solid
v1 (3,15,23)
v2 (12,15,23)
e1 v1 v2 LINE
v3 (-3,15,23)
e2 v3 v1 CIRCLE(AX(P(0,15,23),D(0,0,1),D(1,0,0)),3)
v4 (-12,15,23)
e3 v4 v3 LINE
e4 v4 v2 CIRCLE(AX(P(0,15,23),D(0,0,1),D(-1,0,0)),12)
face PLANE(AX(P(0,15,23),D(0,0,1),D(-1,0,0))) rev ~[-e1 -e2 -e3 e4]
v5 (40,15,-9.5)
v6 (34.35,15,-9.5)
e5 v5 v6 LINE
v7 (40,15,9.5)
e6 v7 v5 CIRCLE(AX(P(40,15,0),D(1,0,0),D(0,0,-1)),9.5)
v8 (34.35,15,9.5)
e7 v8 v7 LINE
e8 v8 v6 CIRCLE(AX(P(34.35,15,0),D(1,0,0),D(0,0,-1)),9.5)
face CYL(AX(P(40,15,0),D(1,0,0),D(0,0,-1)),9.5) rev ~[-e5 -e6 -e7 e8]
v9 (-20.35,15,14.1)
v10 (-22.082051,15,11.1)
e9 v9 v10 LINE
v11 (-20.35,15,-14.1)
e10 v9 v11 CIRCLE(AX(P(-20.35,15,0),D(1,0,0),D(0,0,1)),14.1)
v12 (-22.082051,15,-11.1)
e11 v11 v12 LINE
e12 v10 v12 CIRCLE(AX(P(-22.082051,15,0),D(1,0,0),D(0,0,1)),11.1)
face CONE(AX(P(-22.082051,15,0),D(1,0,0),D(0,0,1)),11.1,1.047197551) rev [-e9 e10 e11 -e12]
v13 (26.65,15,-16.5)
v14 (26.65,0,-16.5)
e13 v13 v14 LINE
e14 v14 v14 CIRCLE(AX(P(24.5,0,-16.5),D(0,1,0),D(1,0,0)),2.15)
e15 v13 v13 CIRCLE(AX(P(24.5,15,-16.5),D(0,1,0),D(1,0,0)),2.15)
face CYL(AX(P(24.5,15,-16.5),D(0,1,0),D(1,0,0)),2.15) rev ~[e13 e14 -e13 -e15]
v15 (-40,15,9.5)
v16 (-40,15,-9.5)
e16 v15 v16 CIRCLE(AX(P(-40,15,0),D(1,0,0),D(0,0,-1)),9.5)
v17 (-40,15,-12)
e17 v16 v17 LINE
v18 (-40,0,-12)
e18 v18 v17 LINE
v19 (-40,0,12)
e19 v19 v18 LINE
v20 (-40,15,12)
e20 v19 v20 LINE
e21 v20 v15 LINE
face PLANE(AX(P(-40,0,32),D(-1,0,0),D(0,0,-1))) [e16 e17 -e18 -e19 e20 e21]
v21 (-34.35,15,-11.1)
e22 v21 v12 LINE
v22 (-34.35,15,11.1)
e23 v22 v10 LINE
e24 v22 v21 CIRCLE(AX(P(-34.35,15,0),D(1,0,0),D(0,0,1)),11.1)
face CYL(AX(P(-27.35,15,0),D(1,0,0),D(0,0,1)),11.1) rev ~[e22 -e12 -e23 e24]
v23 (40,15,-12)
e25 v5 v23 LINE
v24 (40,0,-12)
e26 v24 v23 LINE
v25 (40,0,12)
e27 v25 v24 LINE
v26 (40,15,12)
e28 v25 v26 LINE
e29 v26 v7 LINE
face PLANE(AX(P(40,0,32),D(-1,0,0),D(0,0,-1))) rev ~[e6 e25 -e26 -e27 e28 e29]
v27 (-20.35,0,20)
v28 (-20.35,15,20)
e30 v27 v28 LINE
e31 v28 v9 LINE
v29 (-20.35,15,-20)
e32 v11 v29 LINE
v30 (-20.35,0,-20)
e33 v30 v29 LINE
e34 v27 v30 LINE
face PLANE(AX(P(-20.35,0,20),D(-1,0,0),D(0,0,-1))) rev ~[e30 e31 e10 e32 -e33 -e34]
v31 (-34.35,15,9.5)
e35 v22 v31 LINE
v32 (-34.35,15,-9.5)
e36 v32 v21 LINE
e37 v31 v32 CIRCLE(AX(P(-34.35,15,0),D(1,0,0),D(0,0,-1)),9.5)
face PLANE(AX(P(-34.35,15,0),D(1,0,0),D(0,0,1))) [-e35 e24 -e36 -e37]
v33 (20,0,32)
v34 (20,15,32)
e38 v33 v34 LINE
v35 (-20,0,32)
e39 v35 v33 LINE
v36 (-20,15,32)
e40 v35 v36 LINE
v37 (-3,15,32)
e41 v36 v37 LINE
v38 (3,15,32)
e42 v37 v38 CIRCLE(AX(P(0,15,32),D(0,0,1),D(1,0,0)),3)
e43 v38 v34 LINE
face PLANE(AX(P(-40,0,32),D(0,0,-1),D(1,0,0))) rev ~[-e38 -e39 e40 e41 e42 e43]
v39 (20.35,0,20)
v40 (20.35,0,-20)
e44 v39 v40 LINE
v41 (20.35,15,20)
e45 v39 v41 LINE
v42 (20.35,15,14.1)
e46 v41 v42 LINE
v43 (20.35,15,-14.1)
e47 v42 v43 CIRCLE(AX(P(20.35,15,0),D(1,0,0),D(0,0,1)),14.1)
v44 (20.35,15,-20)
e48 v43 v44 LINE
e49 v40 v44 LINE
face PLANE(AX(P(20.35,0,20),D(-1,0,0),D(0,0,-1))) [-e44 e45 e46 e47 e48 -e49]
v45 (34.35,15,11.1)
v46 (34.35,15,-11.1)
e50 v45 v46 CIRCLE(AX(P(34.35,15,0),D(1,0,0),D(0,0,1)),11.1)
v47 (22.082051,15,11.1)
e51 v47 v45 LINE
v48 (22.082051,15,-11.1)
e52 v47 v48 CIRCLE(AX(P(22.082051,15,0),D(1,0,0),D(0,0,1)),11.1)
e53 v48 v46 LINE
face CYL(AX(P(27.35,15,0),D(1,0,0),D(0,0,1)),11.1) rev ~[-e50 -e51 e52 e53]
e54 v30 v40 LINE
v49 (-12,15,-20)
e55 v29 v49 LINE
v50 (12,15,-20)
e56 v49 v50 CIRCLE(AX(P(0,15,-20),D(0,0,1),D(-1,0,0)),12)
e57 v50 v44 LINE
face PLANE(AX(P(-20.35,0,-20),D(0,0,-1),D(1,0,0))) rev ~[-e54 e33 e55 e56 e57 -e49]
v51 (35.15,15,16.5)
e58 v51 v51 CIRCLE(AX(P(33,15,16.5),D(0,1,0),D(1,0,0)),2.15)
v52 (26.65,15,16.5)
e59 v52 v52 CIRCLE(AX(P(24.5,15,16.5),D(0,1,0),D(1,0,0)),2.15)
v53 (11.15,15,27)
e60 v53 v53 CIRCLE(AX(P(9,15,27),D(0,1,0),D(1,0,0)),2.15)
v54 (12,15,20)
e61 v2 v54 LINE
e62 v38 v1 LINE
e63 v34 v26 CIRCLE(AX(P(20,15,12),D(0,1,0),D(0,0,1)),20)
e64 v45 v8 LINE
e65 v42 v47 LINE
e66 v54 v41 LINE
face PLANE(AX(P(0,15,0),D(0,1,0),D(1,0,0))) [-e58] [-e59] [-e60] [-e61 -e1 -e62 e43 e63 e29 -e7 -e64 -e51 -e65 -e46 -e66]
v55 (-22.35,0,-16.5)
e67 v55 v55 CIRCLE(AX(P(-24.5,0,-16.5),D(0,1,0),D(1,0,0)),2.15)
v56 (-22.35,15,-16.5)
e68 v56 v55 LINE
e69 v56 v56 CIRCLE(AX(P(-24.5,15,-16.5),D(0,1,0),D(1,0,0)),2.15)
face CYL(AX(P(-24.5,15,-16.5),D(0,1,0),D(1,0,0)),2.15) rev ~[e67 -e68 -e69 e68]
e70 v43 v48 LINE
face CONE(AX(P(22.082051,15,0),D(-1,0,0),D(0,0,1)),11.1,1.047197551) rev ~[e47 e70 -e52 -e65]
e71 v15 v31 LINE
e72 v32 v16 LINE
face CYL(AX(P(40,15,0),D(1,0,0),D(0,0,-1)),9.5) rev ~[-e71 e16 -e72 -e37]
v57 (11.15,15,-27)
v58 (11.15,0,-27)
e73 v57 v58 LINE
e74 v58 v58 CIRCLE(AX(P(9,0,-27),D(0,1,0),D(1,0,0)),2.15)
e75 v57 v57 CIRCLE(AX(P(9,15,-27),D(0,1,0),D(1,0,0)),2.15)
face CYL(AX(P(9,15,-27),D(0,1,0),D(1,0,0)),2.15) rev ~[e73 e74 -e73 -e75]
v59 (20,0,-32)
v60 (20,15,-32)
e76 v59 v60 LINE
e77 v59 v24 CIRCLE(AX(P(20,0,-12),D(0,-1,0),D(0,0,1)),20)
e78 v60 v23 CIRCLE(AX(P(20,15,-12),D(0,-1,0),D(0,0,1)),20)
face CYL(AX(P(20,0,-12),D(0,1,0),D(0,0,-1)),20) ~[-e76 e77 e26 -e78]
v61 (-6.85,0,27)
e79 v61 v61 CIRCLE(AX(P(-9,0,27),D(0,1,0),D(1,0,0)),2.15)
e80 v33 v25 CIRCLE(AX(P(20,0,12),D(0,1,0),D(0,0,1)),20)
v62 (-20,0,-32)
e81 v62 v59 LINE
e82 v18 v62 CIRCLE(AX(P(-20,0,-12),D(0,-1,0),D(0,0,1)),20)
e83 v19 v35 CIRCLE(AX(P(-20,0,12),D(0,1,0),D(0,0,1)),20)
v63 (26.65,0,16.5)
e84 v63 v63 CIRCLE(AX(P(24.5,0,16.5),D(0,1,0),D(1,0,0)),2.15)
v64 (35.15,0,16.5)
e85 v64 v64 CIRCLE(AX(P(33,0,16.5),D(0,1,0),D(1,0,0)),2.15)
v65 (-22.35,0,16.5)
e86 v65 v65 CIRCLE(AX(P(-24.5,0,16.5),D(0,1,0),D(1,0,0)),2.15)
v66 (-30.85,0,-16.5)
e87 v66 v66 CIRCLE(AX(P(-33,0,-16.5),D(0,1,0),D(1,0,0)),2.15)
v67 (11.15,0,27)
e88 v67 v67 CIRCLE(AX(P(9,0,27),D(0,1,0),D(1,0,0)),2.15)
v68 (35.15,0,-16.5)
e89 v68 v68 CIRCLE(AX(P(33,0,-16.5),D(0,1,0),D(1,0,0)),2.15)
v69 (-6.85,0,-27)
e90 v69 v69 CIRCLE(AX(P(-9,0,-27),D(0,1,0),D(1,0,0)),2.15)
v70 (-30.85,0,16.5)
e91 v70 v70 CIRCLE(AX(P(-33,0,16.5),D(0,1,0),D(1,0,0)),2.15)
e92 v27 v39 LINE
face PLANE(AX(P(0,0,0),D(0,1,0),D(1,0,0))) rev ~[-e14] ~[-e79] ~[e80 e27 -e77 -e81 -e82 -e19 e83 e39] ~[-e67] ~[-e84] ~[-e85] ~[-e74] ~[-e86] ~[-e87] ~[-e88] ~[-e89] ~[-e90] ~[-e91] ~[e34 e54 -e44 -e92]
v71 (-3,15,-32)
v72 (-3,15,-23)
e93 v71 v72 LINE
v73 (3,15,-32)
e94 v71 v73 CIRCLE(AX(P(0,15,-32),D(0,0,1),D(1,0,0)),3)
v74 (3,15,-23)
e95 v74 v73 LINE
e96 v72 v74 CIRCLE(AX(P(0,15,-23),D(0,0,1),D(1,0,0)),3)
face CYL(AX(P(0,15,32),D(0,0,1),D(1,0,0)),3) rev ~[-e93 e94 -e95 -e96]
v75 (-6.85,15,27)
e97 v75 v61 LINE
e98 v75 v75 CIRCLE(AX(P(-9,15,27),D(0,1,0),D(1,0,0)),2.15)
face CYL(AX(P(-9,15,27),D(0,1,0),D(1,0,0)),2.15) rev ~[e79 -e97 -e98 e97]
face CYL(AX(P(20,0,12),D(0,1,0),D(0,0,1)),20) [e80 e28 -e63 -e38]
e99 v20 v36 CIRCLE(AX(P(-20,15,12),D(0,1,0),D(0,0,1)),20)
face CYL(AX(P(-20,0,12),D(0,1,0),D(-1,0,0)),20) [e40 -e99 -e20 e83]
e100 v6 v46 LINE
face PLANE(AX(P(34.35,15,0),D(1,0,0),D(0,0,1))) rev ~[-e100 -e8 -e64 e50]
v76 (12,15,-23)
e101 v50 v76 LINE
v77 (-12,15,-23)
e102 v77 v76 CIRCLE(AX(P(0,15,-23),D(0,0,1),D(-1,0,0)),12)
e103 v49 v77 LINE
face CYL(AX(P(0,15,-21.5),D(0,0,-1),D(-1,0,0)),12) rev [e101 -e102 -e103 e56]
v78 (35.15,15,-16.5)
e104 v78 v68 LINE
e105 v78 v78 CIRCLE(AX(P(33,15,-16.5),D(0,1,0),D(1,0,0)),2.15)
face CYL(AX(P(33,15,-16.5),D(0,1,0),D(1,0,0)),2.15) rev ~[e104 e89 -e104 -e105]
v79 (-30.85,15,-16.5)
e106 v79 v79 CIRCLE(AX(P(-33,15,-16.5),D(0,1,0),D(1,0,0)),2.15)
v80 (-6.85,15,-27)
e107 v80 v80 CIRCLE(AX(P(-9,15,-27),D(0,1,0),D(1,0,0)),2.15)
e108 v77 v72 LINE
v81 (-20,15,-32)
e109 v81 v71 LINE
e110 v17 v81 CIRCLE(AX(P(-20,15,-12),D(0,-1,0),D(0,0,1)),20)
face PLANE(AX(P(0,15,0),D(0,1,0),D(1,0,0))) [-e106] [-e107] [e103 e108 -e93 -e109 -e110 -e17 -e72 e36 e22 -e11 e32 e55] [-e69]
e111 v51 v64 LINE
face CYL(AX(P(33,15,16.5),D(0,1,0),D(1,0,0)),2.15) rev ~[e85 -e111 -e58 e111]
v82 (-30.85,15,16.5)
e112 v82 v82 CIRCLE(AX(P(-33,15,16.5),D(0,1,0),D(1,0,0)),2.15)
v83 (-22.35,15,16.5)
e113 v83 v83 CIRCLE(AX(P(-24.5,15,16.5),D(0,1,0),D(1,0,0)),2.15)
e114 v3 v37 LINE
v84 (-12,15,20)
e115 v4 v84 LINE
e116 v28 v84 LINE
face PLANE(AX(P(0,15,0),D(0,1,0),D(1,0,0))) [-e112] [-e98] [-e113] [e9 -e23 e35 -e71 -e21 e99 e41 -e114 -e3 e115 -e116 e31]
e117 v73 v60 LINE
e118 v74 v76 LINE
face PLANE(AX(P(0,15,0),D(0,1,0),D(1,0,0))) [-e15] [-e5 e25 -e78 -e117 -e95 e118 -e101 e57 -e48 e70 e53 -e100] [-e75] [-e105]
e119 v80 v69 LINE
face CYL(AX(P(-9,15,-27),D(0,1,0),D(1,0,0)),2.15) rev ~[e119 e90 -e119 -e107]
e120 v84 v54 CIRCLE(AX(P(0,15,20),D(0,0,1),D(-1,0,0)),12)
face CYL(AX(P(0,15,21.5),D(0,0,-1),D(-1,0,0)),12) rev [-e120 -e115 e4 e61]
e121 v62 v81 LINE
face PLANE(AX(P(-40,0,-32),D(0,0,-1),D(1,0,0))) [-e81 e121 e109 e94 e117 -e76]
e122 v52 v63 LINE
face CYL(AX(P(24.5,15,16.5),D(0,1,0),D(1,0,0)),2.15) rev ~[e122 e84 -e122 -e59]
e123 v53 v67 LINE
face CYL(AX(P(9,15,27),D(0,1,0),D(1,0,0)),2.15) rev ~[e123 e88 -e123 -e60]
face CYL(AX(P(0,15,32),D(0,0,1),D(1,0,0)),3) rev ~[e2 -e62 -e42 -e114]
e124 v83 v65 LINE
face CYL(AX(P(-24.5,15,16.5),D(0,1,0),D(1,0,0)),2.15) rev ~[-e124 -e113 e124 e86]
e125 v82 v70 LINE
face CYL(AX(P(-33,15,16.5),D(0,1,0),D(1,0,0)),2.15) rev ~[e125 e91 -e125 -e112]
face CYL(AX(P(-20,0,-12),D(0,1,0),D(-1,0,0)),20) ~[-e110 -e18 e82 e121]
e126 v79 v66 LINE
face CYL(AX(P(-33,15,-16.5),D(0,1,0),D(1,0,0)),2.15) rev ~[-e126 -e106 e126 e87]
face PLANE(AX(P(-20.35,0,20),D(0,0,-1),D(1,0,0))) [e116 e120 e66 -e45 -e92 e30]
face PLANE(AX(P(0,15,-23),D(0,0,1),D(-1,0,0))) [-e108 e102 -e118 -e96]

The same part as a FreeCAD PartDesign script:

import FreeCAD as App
import Part
import Sketcher

V = App.Vector


def edges_at(feature, points):
    """Names of the edges that pass closest to the given points."""
    edges = feature.Shape.Edges
    near = lambda p: min(range(len(edges)), key=lambda i: edges[i].distToShape(Part.Vertex(*p))[0])
    return sorted({f"Edge{near(p) + 1}" for p in points})

doc = App.newDocument("Part")
body = doc.addObject("PartDesign::Body", "Body")

sketch1 = doc.addObject("Sketcher::SketchObject", "Sketch")
body.addObject(sketch1)
sketch1.AttachmentSupport = (doc.XZ_Plane, [""])
sketch1.MapMode = "FlatFace"
sketch1.addGeometry([
    Part.LineSegment(V(-40, -32, 0), V(-40, 32, 0)),
    Part.LineSegment(V(-40, 32, 0), V(40, 32, 0)),
    Part.LineSegment(V(40, 32, 0), V(40, -32, 0)),
    Part.LineSegment(V(40, -32, 0), V(-40, -32, 0)),
    Part.LineSegment(V(20, 20, 0), V(-20, 20, 0)),
    Part.LineSegment(V(-20, 20, 0), V(-20, -20, 0)),
    Part.LineSegment(V(-20, -20, 0), V(20, -20, 0)),
    Part.LineSegment(V(20, -20, 0), V(20, 20, 0)),
], False)
sketch1.addConstraint([
    Sketcher.Constraint("Coincident", 0, 2, 1, 1),
    Sketcher.Constraint("Coincident", 1, 2, 2, 1),
    Sketcher.Constraint("Coincident", 2, 2, 3, 1),
    Sketcher.Constraint("Coincident", 3, 2, 0, 1),
    Sketcher.Constraint("Coincident", 4, 2, 5, 1),
    Sketcher.Constraint("Coincident", 5, 2, 6, 1),
    Sketcher.Constraint("Coincident", 6, 2, 7, 1),
    Sketcher.Constraint("Coincident", 7, 2, 4, 1),
    Sketcher.Constraint("Vertical", 0),
    Sketcher.Constraint("Horizontal", 1),
    Sketcher.Constraint("Vertical", 2),
    Sketcher.Constraint("Horizontal", 3),
    Sketcher.Constraint("Horizontal", 4),
    Sketcher.Constraint("Vertical", 5),
    Sketcher.Constraint("Horizontal", 6),
    Sketcher.Constraint("Vertical", 7),
    Sketcher.Constraint("Symmetric", 0, 2, 2, 2, -1, 1),
    Sketcher.Constraint("Symmetric", 4, 2, 6, 2, -1, 1),
    Sketcher.Constraint("DistanceX", 1, 1, 1, 2, 80.0),
    Sketcher.Constraint("DistanceY", 0, 1, 0, 2, 64.0),
    Sketcher.Constraint("DistanceY", 5, 2, 5, 1, 40.0),
    Sketcher.Constraint("DistanceX", 4, 2, 4, 1, 40.7),
])
pad1 = doc.addObject("PartDesign::Pad", "Pad")
body.addObject(pad1)
pad1.Profile = sketch1
pad1.Length = 15
pad1.Reversed = True

sketch2 = doc.addObject("Sketcher::SketchObject", "Sketch001")
body.addObject(sketch2)
sketch2.AttachmentSupport = (doc.XZ_Plane, [""])
sketch2.MapMode = "FlatFace"
sketch2.AttachmentOffset = App.Placement(V(0, 0, -15), App.Rotation())
sketch2.addGeometry([
    Part.LineSegment(V(20, 0, 0), V(20, 11, 0)),
    Part.LineSegment(V(20, 11, 0), V(34, 11, 0)),
    Part.LineSegment(V(34, 11, 0), V(34, 0, 0)),
    Part.LineSegment(V(34, 0, 0), V(20, 0, 0)),
    Part.LineSegment(V(-34, 0, 0), V(-34, 11, 0)),
    Part.LineSegment(V(-34, 11, 0), V(-20, 11, 0)),
    Part.LineSegment(V(-20, 11, 0), V(-20, 0, 0)),
    Part.LineSegment(V(-20, 0, 0), V(-34, 0, 0)),
], False)
sketch2.addConstraint([
    Sketcher.Constraint("Coincident", 0, 2, 1, 1),
    Sketcher.Constraint("Coincident", 1, 2, 2, 1),
    Sketcher.Constraint("Coincident", 2, 2, 3, 1),
    Sketcher.Constraint("Coincident", 3, 2, 0, 1),
    Sketcher.Constraint("Coincident", 4, 2, 5, 1),
    Sketcher.Constraint("Coincident", 5, 2, 6, 1),
    Sketcher.Constraint("Coincident", 6, 2, 7, 1),
    Sketcher.Constraint("Coincident", 7, 2, 4, 1),
    Sketcher.Constraint("Vertical", 0),
    Sketcher.Constraint("Horizontal", 1),
    Sketcher.Constraint("Vertical", 2),
    Sketcher.Constraint("Horizontal", 3),
    Sketcher.Constraint("Vertical", 4),
    Sketcher.Constraint("Horizontal", 5),
    Sketcher.Constraint("Vertical", 6),
    Sketcher.Constraint("Horizontal", 7),
    Sketcher.Constraint("Symmetric", 3, 2, 6, 2, -1, 1),
    Sketcher.Constraint("Symmetric", 1, 2, 4, 2, -2),
    Sketcher.Constraint("PointOnObject", 2, 2, -1),
    Sketcher.Constraint("DistanceX", 1, 1, 1, 2, 14.0),
    Sketcher.Constraint("DistanceY", 0, 1, 0, 2, 11.1),
    Sketcher.Constraint("DistanceX", 4, 2, 0, 2, 54.7),
])
groove = doc.addObject("PartDesign::Groove", "Groove")
body.addObject(groove)
groove.Profile = sketch2
groove.ReferenceAxis = (sketch2, ["H_Axis"])
groove.Angle = 360

sketch3 = doc.addObject("Sketcher::SketchObject", "Sketch002")
body.addObject(sketch3)
sketch3.AttachmentSupport = (doc.YZ_Plane, [""])
sketch3.MapMode = "FlatFace"
sketch3.AttachmentOffset = App.Placement(V(0, 0, 40), App.Rotation())
sketch3.addGeometry(Part.Circle(V(15, 0, 0), V(0, 0, 1), 10), False)
sketch3.addConstraint([
    Sketcher.Constraint("PointOnObject", 0, 3, -1),
    Sketcher.Constraint("Diameter", 0, 19.0),
    Sketcher.Constraint("DistanceX", -1, 1, 0, 3, 15.0),
])
pocket1 = doc.addObject("PartDesign::Pocket", "Pocket")
body.addObject(pocket1)
pocket1.Profile = sketch3
pocket1.Type = "ThroughAll"

sketch4 = doc.addObject("Sketcher::SketchObject", "Sketch003")
body.addObject(sketch4)
sketch4.AttachmentSupport = (doc.XY_Plane, [""])
sketch4.MapMode = "FlatFace"
sketch4.AttachmentOffset = App.Placement(V(0, 0, 32), App.Rotation())
sketch4.addGeometry(Part.Circle(V(0, 15, 0), V(0, 0, 1), 3), False)
sketch4.addConstraint([
    Sketcher.Constraint("PointOnObject", 0, 3, -2),
    Sketcher.Constraint("Diameter", 0, 6.0),
    Sketcher.Constraint("DistanceY", -1, 1, 0, 3, 15.0),
])
pocket2 = doc.addObject("PartDesign::Pocket", "Pocket001")
body.addObject(pocket2)
pocket2.Profile = sketch4
pocket2.Type = "ThroughAll"

sketch5 = doc.addObject("Sketcher::SketchObject", "Sketch004")
body.addObject(sketch5)
sketch5.AttachmentSupport = (doc.XZ_Plane, [""])
sketch5.MapMode = "FlatFace"
sketch5.AttachmentOffset = App.Placement(V(0, 0, -15), App.Rotation())
sketch5.addGeometry([
    Part.Circle(V(24.5, -16.5, 0), V(0, 0, 1), 2.1),
    Part.Circle(V(24.5, 16.5, 0), V(0, 0, 1), 2.1),
    Part.Circle(V(-24.5, 16.5, 0), V(0, 0, 1), 2.1),
    Part.Circle(V(-24.5, -16.5, 0), V(0, 0, 1), 2.1),
    Part.Circle(V(9, 27, 0), V(0, 0, 1), 2.1),
    Part.Circle(V(-9, 27, 0), V(0, 0, 1), 2.1),
    Part.Circle(V(-9, -27, 0), V(0, 0, 1), 2.1),
    Part.Circle(V(9, -27, 0), V(0, 0, 1), 2.1),
    Part.Circle(V(-33, -16.5, 0), V(0, 0, 1), 2.1),
    Part.Circle(V(33, -16.5, 0), V(0, 0, 1), 2.1),
    Part.Circle(V(33, 16.5, 0), V(0, 0, 1), 2.1),
    Part.Circle(V(-33, 16.5, 0), V(0, 0, 1), 2.1),
], False)
sketch5.addConstraint([
    Sketcher.Constraint("Equal", 0, 1),
    Sketcher.Constraint("Equal", 1, 2),
    Sketcher.Constraint("Equal", 2, 3),
    Sketcher.Constraint("Equal", 3, 4),
    Sketcher.Constraint("Equal", 4, 5),
    Sketcher.Constraint("Equal", 5, 6),
    Sketcher.Constraint("Equal", 6, 7),
    Sketcher.Constraint("Equal", 7, 8),
    Sketcher.Constraint("Equal", 8, 9),
    Sketcher.Constraint("Equal", 9, 10),
    Sketcher.Constraint("Equal", 10, 11),
    Sketcher.Constraint("Symmetric", 0, 3, 2, 3, -1, 1),
    Sketcher.Constraint("Symmetric", 1, 3, 3, 3, -1, 1),
    Sketcher.Constraint("Symmetric", 4, 3, 6, 3, -1, 1),
    Sketcher.Constraint("Symmetric", 5, 3, 7, 3, -1, 1),
    Sketcher.Constraint("Symmetric", 8, 3, 10, 3, -1, 1),
    Sketcher.Constraint("Symmetric", 9, 3, 11, 3, -1, 1),
    Sketcher.Constraint("Symmetric", 1, 3, 2, 3, -2),
    Sketcher.Constraint("Symmetric", 4, 3, 5, 3, -2),
    Sketcher.Constraint("Symmetric", 8, 3, 9, 3, -2),
    Sketcher.Constraint("Horizontal", 3, 3, 8, 3),
    Sketcher.Constraint("Diameter", 0, 4.3),
    Sketcher.Constraint("DistanceX", -1, 1, 4, 3, 9.0),
    Sketcher.Constraint("DistanceY", -1, 1, 4, 3, 27.0),
    Sketcher.Constraint("DistanceX", 8, 3, -1, 1, 33.0),
    Sketcher.Constraint("DistanceY", 0, 3, 1, 3, 33.0),
    Sketcher.Constraint("DistanceX", 2, 3, 1, 3, 49.0),
])
pocket3 = doc.addObject("PartDesign::Pocket", "Pocket002")
body.addObject(pocket3)
pocket3.Profile = sketch5
pocket3.Type = "ThroughAll"
pocket3.Reversed = True
doc.recompute()

fillet = doc.addObject("PartDesign::Fillet", "Fillet")
body.addObject(fillet)
fillet.Base = (pocket3, edges_at(pocket3, [
    (-40, 7.5, -32),
    (40, 7.5, -32),
    (40, 7.5, 32),
    (-40, 7.5, 32),
]))
fillet.Radius = 20
doc.recompute()

chamfer = doc.addObject("PartDesign::Chamfer", "Chamfer")
body.addObject(chamfer)
chamfer.Base = (fillet, edges_at(fillet, [(20.35, 3.9, 0)]))
chamfer.ChamferType = "Two distances"
chamfer.Size = 3
chamfer.Size2 = 1.732051
doc.recompute()

chamfer2 = doc.addObject("PartDesign::Chamfer", "Chamfer001")
body.addObject(chamfer2)
chamfer2.Base = (chamfer, edges_at(chamfer, [(-20.35, 3.9, 0)]))
chamfer2.ChamferType = "Two distances"
chamfer2.Size = 3
chamfer2.Size2 = 1.732051

sketch6 = doc.addObject("Sketcher::SketchObject", "Sketch005")
body.addObject(sketch6)
sketch6.AttachmentSupport = (doc.XZ_Plane, [""])
sketch6.MapMode = "FlatFace"
sketch6.AttachmentOffset = App.Placement(V(0, 0, -15), App.Rotation())
sketch6.addGeometry([
    Part.LineSegment(V(-12, 20, 0), V(-12, 23, 0)),
    Part.LineSegment(V(-12, 23, 0), V(0, 23, 0)),
    Part.LineSegment(V(0, 23, 0), V(0, 20, 0)),
    Part.LineSegment(V(0, 20, 0), V(-12, 20, 0)),
    Part.LineSegment(V(-12, -23, 0), V(-12, -20, 0)),
    Part.LineSegment(V(-12, -20, 0), V(0, -20, 0)),
    Part.LineSegment(V(0, -20, 0), V(0, -23, 0)),
    Part.LineSegment(V(0, -23, 0), V(-12, -23, 0)),
], False)
sketch6.addConstraint([
    Sketcher.Constraint("Coincident", 0, 2, 1, 1),
    Sketcher.Constraint("Coincident", 1, 2, 2, 1),
    Sketcher.Constraint("Coincident", 2, 2, 3, 1),
    Sketcher.Constraint("Coincident", 3, 2, 0, 1),
    Sketcher.Constraint("Coincident", 4, 2, 5, 1),
    Sketcher.Constraint("Coincident", 5, 2, 6, 1),
    Sketcher.Constraint("Coincident", 6, 2, 7, 1),
    Sketcher.Constraint("Coincident", 7, 2, 4, 1),
    Sketcher.Constraint("Vertical", 0),
    Sketcher.Constraint("Horizontal", 1),
    Sketcher.Constraint("Vertical", 2),
    Sketcher.Constraint("Horizontal", 3),
    Sketcher.Constraint("Vertical", 4),
    Sketcher.Constraint("Horizontal", 5),
    Sketcher.Constraint("Vertical", 6),
    Sketcher.Constraint("Horizontal", 7),
    Sketcher.Constraint("Symmetric", 2, 2, 5, 2, -1, 1),
    Sketcher.Constraint("Symmetric", 1, 2, 6, 2, -1),
    Sketcher.Constraint("Vertical", 3, 2, 4, 2),
    Sketcher.Constraint("DistanceX", 1, 1, 1, 2, 12.0),
    Sketcher.Constraint("DistanceY", 0, 1, 0, 2, 3.0),
    Sketcher.Constraint("DistanceY", -1, 1, 0, 2, 23.0),
])
groove2 = doc.addObject("PartDesign::Groove", "Groove001")
body.addObject(groove2)
groove2.Profile = sketch6
groove2.ReferenceAxis = (sketch6, ["V_Axis"])
groove2.Angle = 360

doc.recompute()
